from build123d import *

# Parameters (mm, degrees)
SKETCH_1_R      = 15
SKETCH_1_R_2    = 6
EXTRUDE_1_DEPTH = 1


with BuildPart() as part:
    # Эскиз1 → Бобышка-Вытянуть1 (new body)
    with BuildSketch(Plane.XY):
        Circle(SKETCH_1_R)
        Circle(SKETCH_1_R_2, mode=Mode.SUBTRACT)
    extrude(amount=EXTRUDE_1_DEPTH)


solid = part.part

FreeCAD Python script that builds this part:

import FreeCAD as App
import Part
import Sketcher

V = App.Vector

doc = App.newDocument("Part")
params = doc.addObject("Spreadsheet::Sheet", "Params")
for row, (alias, value) in enumerate([
    ("sketch1_diameter", "30 mm"),
    ("sketch1_diameter2", "12 mm"),
    ("pad1_length", "1 mm"),
], start=1):
    params.set(f"A{row}", alias)
    params.set(f"B{row}", "=" + value)
    params.setAlias(f"B{row}", alias)

body = doc.addObject("PartDesign::Body", "Body")

sketch1 = body.newObject("Sketcher::SketchObject", "Sketch")
sketch1.AttachmentSupport = (doc.getObject("XY_Plane"), [""])
sketch1.MapMode = "FlatFace"
sketch1.addGeometry([
    Part.Circle(V(0, 0, 0), V(0, 0, 1), 15),
    Part.Circle(V(0, 0, 0), V(0, 0, 1), 6),
], False)
sketch1.addConstraint([
    Sketcher.Constraint("Coincident", 0, 3, -1, 1),
    Sketcher.Constraint("Coincident", 1, 3, -1, 1),
    Sketcher.Constraint("Diameter", 0, 30.0),
    Sketcher.Constraint("Diameter", 1, 12.0),
])
sketch1.setExpression("Constraints[2]", "Params.sketch1_diameter")
sketch1.setExpression("Constraints[3]", "Params.sketch1_diameter2")
pad1 = body.newObject("PartDesign::Pad", "Pad")
pad1.Profile = sketch1
pad1.setExpression("Length", "Params.pad1_length")

doc.recompute()
